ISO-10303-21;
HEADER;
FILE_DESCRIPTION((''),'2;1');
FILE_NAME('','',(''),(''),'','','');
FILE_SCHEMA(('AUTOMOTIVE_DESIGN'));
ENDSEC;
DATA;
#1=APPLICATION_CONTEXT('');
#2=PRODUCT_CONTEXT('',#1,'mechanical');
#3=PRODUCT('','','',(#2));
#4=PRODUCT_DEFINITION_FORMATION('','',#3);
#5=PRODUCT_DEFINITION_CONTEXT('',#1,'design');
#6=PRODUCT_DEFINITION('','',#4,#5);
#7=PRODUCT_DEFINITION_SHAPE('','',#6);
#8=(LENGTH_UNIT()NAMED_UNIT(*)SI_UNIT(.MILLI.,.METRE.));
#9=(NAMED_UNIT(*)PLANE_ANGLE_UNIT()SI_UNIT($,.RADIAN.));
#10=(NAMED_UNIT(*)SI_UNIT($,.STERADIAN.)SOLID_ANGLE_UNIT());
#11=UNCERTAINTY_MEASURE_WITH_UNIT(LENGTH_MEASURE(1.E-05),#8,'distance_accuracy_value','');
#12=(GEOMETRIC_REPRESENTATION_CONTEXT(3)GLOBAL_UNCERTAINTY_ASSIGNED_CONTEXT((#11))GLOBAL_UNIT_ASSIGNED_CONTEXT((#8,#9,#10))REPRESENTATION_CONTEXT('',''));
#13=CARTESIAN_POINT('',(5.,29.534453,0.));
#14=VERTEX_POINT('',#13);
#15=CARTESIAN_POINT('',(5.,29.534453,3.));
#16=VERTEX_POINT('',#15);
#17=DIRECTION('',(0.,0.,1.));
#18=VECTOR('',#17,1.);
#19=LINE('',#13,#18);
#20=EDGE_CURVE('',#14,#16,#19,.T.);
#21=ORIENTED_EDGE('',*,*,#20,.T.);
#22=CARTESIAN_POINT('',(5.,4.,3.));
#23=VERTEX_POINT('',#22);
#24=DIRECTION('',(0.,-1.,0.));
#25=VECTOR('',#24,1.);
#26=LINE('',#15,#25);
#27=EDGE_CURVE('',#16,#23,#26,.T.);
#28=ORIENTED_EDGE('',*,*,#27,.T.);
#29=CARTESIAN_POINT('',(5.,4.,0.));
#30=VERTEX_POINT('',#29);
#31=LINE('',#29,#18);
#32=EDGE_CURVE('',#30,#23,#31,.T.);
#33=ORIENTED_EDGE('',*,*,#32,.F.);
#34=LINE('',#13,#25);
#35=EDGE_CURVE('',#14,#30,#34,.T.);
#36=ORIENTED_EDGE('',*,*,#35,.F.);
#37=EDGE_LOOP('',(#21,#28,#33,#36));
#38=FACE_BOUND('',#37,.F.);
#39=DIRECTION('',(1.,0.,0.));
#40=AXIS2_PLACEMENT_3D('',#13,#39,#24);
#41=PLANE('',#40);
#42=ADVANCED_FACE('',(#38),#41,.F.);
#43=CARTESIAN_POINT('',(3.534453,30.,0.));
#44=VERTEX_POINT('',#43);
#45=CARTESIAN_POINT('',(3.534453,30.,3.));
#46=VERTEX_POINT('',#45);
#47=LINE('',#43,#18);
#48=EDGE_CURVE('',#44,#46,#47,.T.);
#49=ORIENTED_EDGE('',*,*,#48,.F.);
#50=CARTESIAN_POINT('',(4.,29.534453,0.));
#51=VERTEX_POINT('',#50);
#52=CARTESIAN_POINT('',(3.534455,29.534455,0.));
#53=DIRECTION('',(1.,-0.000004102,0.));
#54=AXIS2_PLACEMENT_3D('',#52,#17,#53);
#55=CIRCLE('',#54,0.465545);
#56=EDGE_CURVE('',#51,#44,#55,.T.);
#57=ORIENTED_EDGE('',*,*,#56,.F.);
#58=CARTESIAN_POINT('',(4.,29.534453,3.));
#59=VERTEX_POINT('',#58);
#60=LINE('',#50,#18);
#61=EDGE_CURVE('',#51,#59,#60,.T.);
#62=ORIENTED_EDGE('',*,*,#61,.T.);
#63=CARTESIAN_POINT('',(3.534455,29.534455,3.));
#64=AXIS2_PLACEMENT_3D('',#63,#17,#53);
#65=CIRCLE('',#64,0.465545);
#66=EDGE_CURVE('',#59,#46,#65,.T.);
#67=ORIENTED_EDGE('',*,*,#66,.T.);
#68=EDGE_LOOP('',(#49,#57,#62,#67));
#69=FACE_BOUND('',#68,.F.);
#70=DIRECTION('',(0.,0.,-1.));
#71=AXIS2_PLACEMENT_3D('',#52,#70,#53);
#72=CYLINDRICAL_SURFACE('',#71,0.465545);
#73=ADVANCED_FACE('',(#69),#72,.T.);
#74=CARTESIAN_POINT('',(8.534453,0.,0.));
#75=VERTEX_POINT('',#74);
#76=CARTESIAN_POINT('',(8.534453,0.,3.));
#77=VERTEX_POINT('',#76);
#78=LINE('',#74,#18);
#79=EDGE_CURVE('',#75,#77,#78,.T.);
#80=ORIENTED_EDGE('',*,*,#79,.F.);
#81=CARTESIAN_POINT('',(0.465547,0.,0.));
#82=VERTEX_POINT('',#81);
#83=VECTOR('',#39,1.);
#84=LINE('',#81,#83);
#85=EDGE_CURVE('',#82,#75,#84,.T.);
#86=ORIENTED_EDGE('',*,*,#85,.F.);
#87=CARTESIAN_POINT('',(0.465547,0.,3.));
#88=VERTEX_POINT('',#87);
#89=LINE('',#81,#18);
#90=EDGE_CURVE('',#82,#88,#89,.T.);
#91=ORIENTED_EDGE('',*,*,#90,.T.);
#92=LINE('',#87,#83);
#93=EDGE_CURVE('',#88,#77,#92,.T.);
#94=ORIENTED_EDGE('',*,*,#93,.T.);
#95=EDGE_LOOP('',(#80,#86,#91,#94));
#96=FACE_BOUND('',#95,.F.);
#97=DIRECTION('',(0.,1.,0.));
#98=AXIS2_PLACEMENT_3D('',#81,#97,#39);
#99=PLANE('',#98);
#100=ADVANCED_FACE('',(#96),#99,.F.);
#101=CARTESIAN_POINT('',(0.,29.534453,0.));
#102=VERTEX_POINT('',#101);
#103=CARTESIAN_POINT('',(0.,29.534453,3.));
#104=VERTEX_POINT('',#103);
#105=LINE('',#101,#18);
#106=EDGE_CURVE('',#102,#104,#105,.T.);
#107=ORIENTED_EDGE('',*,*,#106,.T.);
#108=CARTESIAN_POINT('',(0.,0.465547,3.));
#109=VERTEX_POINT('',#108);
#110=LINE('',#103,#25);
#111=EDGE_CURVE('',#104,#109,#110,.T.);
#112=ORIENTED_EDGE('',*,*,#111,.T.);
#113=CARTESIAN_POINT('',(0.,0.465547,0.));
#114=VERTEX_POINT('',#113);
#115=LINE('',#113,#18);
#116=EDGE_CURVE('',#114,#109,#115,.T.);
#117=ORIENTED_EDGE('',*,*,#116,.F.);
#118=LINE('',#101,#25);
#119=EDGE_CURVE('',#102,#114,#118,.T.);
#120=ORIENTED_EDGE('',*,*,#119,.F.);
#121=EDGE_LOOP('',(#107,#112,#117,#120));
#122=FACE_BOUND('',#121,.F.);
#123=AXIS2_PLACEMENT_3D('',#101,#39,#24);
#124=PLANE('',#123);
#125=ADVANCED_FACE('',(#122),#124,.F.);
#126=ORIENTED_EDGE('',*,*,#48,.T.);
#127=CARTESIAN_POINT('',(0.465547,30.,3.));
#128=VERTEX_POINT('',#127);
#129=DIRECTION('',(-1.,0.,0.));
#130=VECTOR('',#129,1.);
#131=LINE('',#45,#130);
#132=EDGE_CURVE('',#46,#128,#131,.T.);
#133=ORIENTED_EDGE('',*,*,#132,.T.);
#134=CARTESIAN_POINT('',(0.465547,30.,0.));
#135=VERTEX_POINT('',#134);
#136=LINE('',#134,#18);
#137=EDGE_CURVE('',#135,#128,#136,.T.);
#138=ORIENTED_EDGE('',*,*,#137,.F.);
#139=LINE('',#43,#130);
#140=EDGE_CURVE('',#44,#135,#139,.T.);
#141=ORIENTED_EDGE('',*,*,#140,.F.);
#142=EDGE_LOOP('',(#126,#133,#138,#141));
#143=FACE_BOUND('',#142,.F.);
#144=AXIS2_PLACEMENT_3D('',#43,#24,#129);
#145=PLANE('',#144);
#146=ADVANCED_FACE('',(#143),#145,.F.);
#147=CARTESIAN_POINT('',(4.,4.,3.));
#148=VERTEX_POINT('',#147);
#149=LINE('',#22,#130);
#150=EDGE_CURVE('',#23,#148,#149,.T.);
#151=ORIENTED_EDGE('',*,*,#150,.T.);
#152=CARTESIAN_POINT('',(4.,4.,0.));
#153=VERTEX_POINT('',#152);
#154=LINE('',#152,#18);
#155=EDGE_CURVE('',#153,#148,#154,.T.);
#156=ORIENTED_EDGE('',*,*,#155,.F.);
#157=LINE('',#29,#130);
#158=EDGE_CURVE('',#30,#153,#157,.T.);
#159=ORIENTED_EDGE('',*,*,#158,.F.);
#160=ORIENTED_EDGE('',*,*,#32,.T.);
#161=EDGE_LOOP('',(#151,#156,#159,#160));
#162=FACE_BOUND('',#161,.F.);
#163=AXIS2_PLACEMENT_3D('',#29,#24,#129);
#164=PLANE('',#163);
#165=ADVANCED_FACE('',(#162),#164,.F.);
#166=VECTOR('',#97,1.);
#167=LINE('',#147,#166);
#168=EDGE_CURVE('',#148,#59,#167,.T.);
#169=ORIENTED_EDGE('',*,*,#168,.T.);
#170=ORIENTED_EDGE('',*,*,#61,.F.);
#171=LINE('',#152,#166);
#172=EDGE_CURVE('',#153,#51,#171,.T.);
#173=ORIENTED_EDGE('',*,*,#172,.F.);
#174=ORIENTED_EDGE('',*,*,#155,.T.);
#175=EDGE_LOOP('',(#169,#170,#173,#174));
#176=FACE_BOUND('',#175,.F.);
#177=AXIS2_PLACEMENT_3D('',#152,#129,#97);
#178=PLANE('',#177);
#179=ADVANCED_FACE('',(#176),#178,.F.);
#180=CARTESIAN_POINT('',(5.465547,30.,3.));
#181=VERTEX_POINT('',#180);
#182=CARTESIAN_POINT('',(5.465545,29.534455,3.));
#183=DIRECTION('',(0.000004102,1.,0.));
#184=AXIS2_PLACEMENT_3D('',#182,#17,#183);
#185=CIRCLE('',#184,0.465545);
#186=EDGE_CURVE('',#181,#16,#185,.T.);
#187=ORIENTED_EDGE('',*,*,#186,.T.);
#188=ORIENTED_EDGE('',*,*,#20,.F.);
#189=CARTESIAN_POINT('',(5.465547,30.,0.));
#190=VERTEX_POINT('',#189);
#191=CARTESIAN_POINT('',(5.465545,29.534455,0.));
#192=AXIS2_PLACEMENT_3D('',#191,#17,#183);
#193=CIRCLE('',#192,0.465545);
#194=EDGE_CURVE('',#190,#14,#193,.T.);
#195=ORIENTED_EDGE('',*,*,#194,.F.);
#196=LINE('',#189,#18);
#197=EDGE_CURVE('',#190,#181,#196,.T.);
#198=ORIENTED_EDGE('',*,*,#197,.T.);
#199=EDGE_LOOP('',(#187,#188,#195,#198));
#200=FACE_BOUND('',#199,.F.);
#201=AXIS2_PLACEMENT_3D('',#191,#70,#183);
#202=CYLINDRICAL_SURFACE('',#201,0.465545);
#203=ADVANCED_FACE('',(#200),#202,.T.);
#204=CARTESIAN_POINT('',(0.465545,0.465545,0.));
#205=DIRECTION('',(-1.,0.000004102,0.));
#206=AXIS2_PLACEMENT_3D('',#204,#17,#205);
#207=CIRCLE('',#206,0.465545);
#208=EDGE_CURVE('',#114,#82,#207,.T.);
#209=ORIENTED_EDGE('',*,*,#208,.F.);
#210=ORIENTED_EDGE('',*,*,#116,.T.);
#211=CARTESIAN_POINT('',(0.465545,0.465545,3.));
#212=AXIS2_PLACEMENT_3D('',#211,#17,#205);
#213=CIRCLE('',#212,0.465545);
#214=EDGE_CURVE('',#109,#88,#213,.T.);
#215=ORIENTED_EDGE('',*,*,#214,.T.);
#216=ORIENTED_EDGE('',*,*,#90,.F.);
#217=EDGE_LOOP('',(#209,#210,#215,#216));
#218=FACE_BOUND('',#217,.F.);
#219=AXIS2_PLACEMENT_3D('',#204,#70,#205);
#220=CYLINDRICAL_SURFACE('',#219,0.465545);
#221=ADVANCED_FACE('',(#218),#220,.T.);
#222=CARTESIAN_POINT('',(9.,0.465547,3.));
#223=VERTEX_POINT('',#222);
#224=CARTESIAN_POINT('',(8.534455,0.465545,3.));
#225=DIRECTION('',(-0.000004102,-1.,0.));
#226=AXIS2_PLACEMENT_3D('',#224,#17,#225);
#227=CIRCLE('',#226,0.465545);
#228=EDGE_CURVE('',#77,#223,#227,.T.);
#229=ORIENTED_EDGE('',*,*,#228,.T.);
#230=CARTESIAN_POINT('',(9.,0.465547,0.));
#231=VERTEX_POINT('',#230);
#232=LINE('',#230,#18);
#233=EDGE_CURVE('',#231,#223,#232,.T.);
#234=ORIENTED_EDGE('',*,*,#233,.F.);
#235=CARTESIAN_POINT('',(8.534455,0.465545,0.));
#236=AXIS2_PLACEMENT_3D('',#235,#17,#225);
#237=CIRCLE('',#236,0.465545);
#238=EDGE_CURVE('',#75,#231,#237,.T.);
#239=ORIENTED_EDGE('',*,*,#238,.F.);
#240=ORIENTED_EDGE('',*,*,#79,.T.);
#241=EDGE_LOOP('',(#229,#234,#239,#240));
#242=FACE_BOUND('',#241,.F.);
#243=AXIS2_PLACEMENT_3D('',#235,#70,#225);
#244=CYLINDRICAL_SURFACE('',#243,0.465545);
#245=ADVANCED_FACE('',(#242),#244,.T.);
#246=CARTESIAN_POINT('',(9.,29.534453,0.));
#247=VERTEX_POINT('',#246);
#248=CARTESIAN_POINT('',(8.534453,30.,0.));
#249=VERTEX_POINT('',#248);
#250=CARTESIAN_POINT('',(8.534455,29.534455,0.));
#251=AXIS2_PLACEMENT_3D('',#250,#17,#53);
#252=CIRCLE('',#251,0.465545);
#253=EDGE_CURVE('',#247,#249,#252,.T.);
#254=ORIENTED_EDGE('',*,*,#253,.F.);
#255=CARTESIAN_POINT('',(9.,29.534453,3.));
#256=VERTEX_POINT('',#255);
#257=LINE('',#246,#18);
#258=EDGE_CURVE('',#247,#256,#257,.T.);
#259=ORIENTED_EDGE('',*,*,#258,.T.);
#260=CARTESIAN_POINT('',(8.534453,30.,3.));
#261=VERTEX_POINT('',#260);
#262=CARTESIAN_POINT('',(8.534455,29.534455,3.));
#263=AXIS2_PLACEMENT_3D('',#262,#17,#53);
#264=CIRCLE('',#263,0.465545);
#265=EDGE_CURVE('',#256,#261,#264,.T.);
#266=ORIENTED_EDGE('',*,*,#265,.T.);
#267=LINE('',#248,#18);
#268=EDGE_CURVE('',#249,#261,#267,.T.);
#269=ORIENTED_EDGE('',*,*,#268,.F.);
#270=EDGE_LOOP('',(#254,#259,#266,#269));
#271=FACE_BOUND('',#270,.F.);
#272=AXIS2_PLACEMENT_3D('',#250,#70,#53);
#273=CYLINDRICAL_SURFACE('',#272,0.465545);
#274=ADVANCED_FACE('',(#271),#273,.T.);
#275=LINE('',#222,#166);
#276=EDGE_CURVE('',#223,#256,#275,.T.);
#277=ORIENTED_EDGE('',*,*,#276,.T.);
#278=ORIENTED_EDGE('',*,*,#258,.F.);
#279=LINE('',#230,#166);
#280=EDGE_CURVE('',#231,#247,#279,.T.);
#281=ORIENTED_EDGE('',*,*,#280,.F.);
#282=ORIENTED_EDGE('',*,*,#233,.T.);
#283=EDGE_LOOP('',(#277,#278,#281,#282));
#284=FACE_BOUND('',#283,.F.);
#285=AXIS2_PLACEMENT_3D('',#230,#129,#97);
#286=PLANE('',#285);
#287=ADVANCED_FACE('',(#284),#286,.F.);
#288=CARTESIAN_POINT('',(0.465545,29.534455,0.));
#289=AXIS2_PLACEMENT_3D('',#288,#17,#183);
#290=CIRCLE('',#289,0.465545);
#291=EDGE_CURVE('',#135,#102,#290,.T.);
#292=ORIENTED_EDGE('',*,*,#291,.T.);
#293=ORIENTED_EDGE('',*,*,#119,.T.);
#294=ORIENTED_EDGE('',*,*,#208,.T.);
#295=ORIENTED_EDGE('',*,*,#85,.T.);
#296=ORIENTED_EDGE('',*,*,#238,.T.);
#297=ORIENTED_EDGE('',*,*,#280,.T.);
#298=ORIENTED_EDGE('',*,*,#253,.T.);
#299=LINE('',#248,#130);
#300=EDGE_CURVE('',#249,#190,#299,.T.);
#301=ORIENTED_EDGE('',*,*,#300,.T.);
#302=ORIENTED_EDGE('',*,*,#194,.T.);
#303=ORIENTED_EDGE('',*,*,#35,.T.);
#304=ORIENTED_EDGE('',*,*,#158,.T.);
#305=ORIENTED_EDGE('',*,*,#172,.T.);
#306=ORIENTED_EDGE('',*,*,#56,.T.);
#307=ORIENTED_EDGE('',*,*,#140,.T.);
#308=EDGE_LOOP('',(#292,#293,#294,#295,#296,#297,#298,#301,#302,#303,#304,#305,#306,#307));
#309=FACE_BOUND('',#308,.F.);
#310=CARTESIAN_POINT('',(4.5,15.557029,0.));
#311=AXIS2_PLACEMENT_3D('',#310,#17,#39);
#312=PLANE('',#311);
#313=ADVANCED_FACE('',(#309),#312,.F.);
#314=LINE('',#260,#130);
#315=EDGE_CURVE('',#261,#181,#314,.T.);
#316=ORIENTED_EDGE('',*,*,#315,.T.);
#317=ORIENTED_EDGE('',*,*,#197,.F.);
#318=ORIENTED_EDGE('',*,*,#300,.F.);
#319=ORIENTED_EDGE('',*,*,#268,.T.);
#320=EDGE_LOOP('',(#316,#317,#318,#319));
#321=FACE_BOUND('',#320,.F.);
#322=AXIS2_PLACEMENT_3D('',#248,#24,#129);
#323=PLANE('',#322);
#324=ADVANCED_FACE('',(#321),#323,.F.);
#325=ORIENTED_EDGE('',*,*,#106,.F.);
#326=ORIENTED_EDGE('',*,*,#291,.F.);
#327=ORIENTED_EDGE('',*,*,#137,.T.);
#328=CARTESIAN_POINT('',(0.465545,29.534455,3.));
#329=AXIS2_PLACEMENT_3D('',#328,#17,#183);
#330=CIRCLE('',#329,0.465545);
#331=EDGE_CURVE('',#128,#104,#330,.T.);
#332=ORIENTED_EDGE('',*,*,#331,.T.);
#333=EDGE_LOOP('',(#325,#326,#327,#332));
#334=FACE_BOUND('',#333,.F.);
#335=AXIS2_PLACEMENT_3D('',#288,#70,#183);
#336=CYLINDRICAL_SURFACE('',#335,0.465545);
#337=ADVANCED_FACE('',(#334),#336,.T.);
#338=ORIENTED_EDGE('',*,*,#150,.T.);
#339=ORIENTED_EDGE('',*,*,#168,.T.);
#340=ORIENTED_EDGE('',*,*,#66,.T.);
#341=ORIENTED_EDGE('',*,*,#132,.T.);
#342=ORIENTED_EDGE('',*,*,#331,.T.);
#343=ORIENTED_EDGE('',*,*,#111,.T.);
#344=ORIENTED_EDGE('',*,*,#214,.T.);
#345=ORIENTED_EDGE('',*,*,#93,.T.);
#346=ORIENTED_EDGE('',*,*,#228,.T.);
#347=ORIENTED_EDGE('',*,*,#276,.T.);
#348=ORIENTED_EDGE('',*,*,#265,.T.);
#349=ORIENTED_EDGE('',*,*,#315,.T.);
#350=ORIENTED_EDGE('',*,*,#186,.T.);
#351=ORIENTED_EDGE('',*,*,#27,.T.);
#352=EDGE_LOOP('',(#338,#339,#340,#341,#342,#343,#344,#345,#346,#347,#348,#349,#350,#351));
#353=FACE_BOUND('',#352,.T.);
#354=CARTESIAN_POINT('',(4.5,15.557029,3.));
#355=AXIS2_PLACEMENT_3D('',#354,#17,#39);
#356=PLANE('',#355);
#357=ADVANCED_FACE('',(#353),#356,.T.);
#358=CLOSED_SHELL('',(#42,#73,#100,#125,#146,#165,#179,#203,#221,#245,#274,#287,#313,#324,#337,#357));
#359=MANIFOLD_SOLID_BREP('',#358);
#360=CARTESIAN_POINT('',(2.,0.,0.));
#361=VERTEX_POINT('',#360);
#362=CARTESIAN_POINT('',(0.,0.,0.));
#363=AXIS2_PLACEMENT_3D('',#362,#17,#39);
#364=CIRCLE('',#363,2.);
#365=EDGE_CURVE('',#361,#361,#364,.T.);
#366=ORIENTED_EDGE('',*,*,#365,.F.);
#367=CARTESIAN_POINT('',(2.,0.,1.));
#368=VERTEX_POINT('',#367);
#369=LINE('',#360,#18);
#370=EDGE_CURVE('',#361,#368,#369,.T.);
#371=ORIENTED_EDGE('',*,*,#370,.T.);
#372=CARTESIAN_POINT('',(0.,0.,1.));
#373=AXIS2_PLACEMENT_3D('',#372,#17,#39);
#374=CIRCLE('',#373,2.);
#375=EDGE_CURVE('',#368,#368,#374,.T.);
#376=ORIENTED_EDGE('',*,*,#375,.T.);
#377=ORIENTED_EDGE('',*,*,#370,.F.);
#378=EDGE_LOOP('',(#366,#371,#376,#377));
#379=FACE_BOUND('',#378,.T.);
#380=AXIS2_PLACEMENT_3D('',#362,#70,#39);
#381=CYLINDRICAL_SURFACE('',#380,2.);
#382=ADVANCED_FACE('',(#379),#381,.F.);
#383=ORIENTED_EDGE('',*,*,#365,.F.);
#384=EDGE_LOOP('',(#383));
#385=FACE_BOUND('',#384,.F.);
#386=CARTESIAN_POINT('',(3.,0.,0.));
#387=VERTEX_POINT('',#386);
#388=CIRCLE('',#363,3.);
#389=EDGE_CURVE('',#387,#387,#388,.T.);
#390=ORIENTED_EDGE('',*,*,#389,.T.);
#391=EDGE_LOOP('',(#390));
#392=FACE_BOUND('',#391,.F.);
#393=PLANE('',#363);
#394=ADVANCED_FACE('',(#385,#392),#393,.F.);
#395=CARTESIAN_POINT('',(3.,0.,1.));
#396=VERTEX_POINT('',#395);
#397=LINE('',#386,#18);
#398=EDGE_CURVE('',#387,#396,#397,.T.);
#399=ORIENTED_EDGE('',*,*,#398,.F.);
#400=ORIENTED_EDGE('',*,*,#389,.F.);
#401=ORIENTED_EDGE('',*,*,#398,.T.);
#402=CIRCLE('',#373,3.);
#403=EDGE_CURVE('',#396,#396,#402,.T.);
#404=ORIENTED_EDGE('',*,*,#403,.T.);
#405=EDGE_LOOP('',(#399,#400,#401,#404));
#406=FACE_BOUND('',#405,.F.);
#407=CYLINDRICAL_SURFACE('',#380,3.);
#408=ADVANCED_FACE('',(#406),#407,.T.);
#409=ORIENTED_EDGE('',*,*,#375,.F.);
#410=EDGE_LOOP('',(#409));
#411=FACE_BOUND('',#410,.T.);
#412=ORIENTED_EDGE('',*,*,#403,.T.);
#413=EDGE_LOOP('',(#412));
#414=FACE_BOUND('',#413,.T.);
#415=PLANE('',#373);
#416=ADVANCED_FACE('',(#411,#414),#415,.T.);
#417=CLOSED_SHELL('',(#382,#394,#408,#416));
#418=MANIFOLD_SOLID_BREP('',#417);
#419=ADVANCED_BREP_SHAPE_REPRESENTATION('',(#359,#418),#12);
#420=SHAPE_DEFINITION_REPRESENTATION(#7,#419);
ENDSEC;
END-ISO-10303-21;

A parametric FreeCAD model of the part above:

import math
import FreeCAD as App
import Part
import Sketcher
from FreeCAD import Vector

doc = App.newDocument("Part")
body = doc.addObject("PartDesign::Body", "Body")

# Sketch on XY plane
sketch1 = doc.addObject("Sketcher::SketchObject", "Sketch")
body.addObject(sketch1)
sketch1.AttachmentSupport = (doc.XY_Plane, [""])
sketch1.MapMode = "FlatFace"
sketch1.addGeometry([
    Part.ArcOfCircle(Part.Circle(Vector(0.465545, 29.534455, 0), Vector(0, 0, 1), 0.465545), math.radians(89.999765), math.radians(180.000235)),  # 0
    Part.LineSegment(Vector(0, 29.534453, 0), Vector(0, 0.465547, 0)),  # 1
    Part.ArcOfCircle(Part.Circle(Vector(0.465545, 0.465545, 0), Vector(0, 0, 1), 0.465545), math.radians(179.999765), math.radians(270.000235)),  # 2
    Part.LineSegment(Vector(0.465547, 0, 0), Vector(8.534453, 0, 0)),  # 3
    Part.ArcOfCircle(Part.Circle(Vector(8.534455, 0.465545, 0), Vector(0, 0, 1), 0.465545), math.radians(-90.000235), math.radians(0.000235)),  # 4
    Part.LineSegment(Vector(9, 0.465547, 0), Vector(9, 29.534453, 0)),  # 5
    Part.ArcOfCircle(Part.Circle(Vector(8.534455, 29.534455, 0), Vector(0, 0, 1), 0.465545), math.radians(-0.000235), math.radians(90.000235)),  # 6
    Part.LineSegment(Vector(8.534453, 30, 0), Vector(5.465547, 30, 0)),  # 7
    Part.ArcOfCircle(Part.Circle(Vector(5.465545, 29.534455, 0), Vector(0, 0, 1), 0.465545), math.radians(89.999765), math.radians(180.000235)),  # 8
    Part.LineSegment(Vector(5, 29.534453, 0), Vector(5, 4, 0)),  # 9
    Part.LineSegment(Vector(5, 4, 0), Vector(4, 4, 0)),  # 10
    Part.LineSegment(Vector(4, 4, 0), Vector(4, 29.534453, 0)),  # 11
    Part.ArcOfCircle(Part.Circle(Vector(3.534455, 29.534455, 0), Vector(0, 0, 1), 0.465545), math.radians(-0.000235), math.radians(90.000235)),  # 12
    Part.LineSegment(Vector(3.534453, 30, 0), Vector(0.465547, 30, 0)),  # 13
], False)
sketch1.addConstraint([
    Sketcher.Constraint("Coincident", 0, 2, 1, 1),
    Sketcher.Constraint("Coincident", 1, 2, 2, 1),
    Sketcher.Constraint("Coincident", 2, 2, 3, 1),
    Sketcher.Constraint("Coincident", 3, 2, 4, 1),
    Sketcher.Constraint("Coincident", 4, 2, 5, 1),
    Sketcher.Constraint("Coincident", 5, 2, 6, 1),
    Sketcher.Constraint("Coincident", 6, 2, 7, 1),
    Sketcher.Constraint("Coincident", 7, 2, 8, 1),
    Sketcher.Constraint("Coincident", 8, 2, 9, 1),
    Sketcher.Constraint("Coincident", 9, 2, 10, 1),
    Sketcher.Constraint("Coincident", 10, 2, 11, 1),
    Sketcher.Constraint("Coincident", 11, 2, 12, 1),
    Sketcher.Constraint("Coincident", 12, 2, 13, 1),
    Sketcher.Constraint("Coincident", 13, 2, 0, 1),
    Sketcher.Constraint("Vertical", 1),
    Sketcher.Constraint("Horizontal", 3),
    Sketcher.Constraint("Vertical", 5),
    Sketcher.Constraint("Horizontal", 7),
    Sketcher.Constraint("Vertical", 9),
    Sketcher.Constraint("Horizontal", 10),
    Sketcher.Constraint("Vertical", 11),
    Sketcher.Constraint("Horizontal", 13),
    Sketcher.Constraint("Equal", 0, 2),
    Sketcher.Constraint("Equal", 2, 4),
    Sketcher.Constraint("Equal", 4, 6),
    Sketcher.Constraint("Equal", 6, 8),
    Sketcher.Constraint("Equal", 8, 12),
    Sketcher.Constraint("PointOnObject", 0, 2, -2),
    Sketcher.Constraint("PointOnObject", 2, 2, -1),
    Sketcher.Constraint("Horizontal", 0, 3, 6, 3),
    Sketcher.Constraint("Horizontal", 12, 3, 0, 2),
    Sketcher.Constraint("Horizontal", 4, 3, 1, 2),
    Sketcher.Constraint("Horizontal", 1, 2, 4, 2),
    Sketcher.Constraint("Horizontal", 0, 2, 5, 2),
    Sketcher.Constraint("Horizontal", 5, 2, 8, 2),
    Sketcher.Constraint("Horizontal", 8, 2, 11, 2),
    Sketcher.Constraint("Vertical", 0, 3, 2, 2),
    Sketcher.Constraint("Vertical", 6, 3, 3, 2),
    Sketcher.Constraint("Vertical", 3, 2, 6, 2),
    Sketcher.Constraint("Vertical", 8, 3, 7, 2),
    Sketcher.Constraint("Vertical", 2, 2, 13, 2),
    Sketcher.Constraint("Equal", 7, 13),
    Sketcher.Constraint("DistanceX", 10, 2, 10, 1, 1.0),
    Sketcher.Constraint("DistanceX", -1, 1, 4, 2, 9.0),
    Sketcher.Constraint("DistanceY", -1, 1, 6, 2, 30.0),
    Sketcher.Constraint("DistanceX", -1, 1, 8, 2, 5.0),
    Sketcher.Constraint("DistanceY", -1, 1, 9, 2, 4.0),
    Sketcher.Constraint("Radius", 0, 0.465545),
])
pad1 = doc.addObject("PartDesign::Pad", "Pad")
body.addObject(pad1)
pad1.Profile = sketch1
pad1.Length = 3
body2 = doc.addObject("PartDesign::Body", "Body001")

# Sketch on XY plane
sketch2 = doc.addObject("Sketcher::SketchObject", "Sketch001")
body2.addObject(sketch2)
sketch2.AttachmentSupport = (doc.getObject("XY_Plane001"), [""])
sketch2.MapMode = "FlatFace"
sketch2.addGeometry([
    Part.Circle(Vector(0, 0, 0), Vector(0, 0, 1), 3),
    Part.Circle(Vector(0, 0, 0), Vector(0, 0, 1), 2),
], False)
sketch2.addConstraint([
    Sketcher.Constraint("Coincident", 0, 3, -1, 1),
    Sketcher.Constraint("Coincident", 1, 3, -1, 1),
    Sketcher.Constraint("Diameter", 0, 6.0),
    Sketcher.Constraint("Diameter", 1, 4.0),
])
pad2 = doc.addObject("PartDesign::Pad", "Pad001")
body2.addObject(pad2)
pad2.Profile = sketch2
pad2.Length = 1

doc.recompute()
